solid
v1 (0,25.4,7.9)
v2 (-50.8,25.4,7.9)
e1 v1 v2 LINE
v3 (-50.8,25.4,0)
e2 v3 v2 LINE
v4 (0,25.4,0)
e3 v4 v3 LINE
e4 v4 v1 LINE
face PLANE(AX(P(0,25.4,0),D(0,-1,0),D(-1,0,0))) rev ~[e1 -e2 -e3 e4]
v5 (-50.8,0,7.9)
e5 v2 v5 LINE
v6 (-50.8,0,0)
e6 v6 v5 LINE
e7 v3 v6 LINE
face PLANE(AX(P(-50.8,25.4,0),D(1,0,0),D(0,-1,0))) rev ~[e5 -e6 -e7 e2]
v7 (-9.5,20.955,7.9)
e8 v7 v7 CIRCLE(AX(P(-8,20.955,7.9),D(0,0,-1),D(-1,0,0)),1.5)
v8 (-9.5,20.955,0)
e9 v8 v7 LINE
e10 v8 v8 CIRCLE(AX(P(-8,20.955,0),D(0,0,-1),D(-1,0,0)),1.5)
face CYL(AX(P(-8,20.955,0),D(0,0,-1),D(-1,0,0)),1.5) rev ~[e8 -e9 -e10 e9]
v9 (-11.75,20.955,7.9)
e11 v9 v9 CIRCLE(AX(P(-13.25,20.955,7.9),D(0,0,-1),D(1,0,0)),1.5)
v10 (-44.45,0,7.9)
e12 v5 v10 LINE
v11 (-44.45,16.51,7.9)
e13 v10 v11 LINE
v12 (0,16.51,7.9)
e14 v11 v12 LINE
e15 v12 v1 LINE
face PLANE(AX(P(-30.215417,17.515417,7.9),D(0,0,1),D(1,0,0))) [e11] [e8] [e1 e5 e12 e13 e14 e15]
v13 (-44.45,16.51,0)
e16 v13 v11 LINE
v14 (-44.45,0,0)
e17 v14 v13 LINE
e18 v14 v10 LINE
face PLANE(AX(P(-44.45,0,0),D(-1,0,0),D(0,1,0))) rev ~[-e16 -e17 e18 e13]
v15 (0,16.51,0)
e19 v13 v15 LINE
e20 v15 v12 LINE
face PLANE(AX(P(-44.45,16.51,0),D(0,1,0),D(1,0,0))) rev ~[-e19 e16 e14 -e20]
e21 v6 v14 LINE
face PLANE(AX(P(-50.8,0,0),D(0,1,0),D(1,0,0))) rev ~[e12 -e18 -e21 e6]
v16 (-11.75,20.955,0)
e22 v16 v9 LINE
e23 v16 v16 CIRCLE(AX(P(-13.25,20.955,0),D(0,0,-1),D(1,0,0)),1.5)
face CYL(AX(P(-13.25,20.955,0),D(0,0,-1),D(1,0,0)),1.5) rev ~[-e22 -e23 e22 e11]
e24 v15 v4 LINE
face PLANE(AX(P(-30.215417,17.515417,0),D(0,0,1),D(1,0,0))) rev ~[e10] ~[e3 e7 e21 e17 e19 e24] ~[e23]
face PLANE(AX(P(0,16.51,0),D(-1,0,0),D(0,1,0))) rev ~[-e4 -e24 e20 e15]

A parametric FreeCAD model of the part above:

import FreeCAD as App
import Part
import Sketcher
Q = App.Units.Quantity


def add_polygon(sketch, points):
    """Adds a closed chain of lines whose ends are joined by coincident constraints."""
    first, n = sketch.GeometryCount, len(points)
    for a, b in zip(points, points[1:] + points[:1]):
        sketch.addGeometry(Part.LineSegment(App.Vector(*a, 0), App.Vector(*b, 0)), False)
    for i in range(n):
        sketch.addConstraint(Sketcher.Constraint("Coincident", first + i, 2, first + (i + 1) % n, 1))

doc = App.newDocument("Part")
params = doc.addObject("Spreadsheet::Sheet", "Params")
for row, (alias, value) in enumerate([
    ("sketch1_width", "2 in"),
    ("sketch1_height", "1 in"),
    ("sketch1_width2", "0.25 in"),
    ("sketch1_height2", "0.65 in"),
    ("pad1_length", "7.9 mm"),
    ("pocket1_length", "1 in"),
], start=1):
    params.set(f"A{row}", alias)
    params.set(f"B{row}", "=" + value)
    params.setAlias(f"B{row}", alias)

body = doc.addObject("PartDesign::Body", "Body")

# Sketch on XY plane
sketch1 = doc.addObject("Sketcher::SketchObject", "Sketch")
body.addObject(sketch1)
sketch1.AttachmentSupport = (doc.XY_Plane, [""])
sketch1.MapMode = "FlatFace"
add_polygon(sketch1, [(-51, 0), (-44, 0), (-44, 17), (0, 17), (0, 25), (-51, 25)])  # lines 0-5
sketch1.addConstraint(Sketcher.Constraint("Horizontal", 0))
sketch1.addConstraint(Sketcher.Constraint("Vertical", 1))
sketch1.addConstraint(Sketcher.Constraint("Horizontal", 2))
sketch1.addConstraint(Sketcher.Constraint("Vertical", 3))
sketch1.addConstraint(Sketcher.Constraint("Horizontal", 4))
sketch1.addConstraint(Sketcher.Constraint("Vertical", 5))
sketch1.addConstraint(Sketcher.Constraint("PointOnObject", 0, 2, -1))
sketch1.addConstraint(Sketcher.Constraint("PointOnObject", 2, 2, -2))
sketch1.addConstraint(Sketcher.Constraint("DistanceX", 4, 2, 4, 1, Q("2 in")))
sketch1.addConstraint(Sketcher.Constraint("DistanceY", 5, 2, 5, 1, Q("1 in")))
sketch1.addConstraint(Sketcher.Constraint("DistanceX", 0, 1, 0, 2, Q("0.25 in")))
sketch1.addConstraint(Sketcher.Constraint("DistanceY", 1, 1, 1, 2, Q("0.65 in")))
sketch1.setExpression("Constraints[14]", "Params.sketch1_width")
sketch1.setExpression("Constraints[15]", "Params.sketch1_height")
sketch1.setExpression("Constraints[16]", "Params.sketch1_width2")
sketch1.setExpression("Constraints[17]", "Params.sketch1_height2")
pad1 = doc.addObject("PartDesign::Pad", "Pad")
body.addObject(pad1)
pad1.Profile = sketch1
pad1.setExpression("Length", "Params.pad1_length")

# Sketch on XY plane
sketch2 = doc.addObject("Sketcher::SketchObject", "Sketch001")
body.addObject(sketch2)
sketch2.AttachmentSupport = (doc.XY_Plane, [""])
sketch2.MapMode = "FlatFace"
sketch2.addGeometry(Part.Circle(App.Vector(-8, 21, 0), App.Vector(0, 0, 1), 1.5), False)
sketch2.addGeometry(Part.Circle(App.Vector(-13.2, 21, 0), App.Vector(0, 0, 1), 1.5), False)
sketch2.addConstraint(Sketcher.Constraint("Equal", 0, 1))
sketch2.addConstraint(Sketcher.Constraint("Horizontal", 0, 3, 1, 3))
sketch2.addConstraint(Sketcher.Constraint("Diameter", 0, Q("3 mm")))
sketch2.addConstraint(Sketcher.Constraint("DistanceY", -1, 1, 0, 3, Q("0.825 in")))
sketch2.addConstraint(Sketcher.Constraint("DistanceX", 0, 3, -1, 1, Q("8 mm")))
sketch2.addConstraint(Sketcher.Constraint("DistanceX", 1, 3, -1, 1, Q("13.25 mm")))
pocket1 = doc.addObject("PartDesign::Pocket", "Pocket")
body.addObject(pocket1)
pocket1.Profile = sketch2
pocket1.setExpression("Length", "Params.pocket1_length")
pocket1.Reversed = True

doc.recompute()
